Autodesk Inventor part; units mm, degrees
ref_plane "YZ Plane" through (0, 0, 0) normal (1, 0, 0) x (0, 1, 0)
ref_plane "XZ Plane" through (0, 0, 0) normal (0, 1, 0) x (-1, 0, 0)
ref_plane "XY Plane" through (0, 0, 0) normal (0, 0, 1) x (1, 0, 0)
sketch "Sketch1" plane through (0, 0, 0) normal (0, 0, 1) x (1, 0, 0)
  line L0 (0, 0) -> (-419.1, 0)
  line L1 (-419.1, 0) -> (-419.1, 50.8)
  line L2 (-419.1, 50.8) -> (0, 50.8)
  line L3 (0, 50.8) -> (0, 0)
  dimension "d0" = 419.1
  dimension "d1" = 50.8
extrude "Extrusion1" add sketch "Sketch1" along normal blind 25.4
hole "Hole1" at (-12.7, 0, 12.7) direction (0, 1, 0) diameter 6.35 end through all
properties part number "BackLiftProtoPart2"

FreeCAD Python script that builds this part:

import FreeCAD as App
import Part
import Sketcher

V = App.Vector
Q = App.Units.Quantity


def add_polygon(sketch, points):
    """Adds a closed chain of lines whose ends are joined by coincident constraints."""
    first, n = sketch.GeometryCount, len(points)
    for a, b in zip(points, points[1:] + points[:1]):
        sketch.addGeometry(Part.LineSegment(App.Vector(*a, 0), App.Vector(*b, 0)), False)
    for i in range(n):
        sketch.addConstraint(Sketcher.Constraint("Coincident", first + i, 2, first + (i + 1) % n, 1))

doc = App.newDocument("Part")
body = doc.addObject("PartDesign::Body", "Body")

# Sketch on XY plane
sketch1 = body.newObject("Sketcher::SketchObject", "Sketch")
sketch1.AttachmentSupport = (doc.getObject("XY_Plane"), [""])
sketch1.MapMode = "FlatFace"
add_polygon(sketch1, [(-419.1, 0), (0, 0), (0, 50.8), (-419.1, 50.8)])  # lines 0-3
sketch1.addConstraint(Sketcher.Constraint("Horizontal", 0))
sketch1.addConstraint(Sketcher.Constraint("Vertical", 1))
sketch1.addConstraint(Sketcher.Constraint("Horizontal", 2))
sketch1.addConstraint(Sketcher.Constraint("Vertical", 3))
sketch1.addConstraint(Sketcher.Constraint("Coincident", 0, 2, -1, 1))
sketch1.addConstraint(Sketcher.Constraint("DistanceY", 1, 1, 1, 2, Q("2 in")))
sketch1.addConstraint(Sketcher.Constraint("DistanceX", 0, 1, 0, 2, Q("16.5 in")))
pad1 = body.newObject("PartDesign::Pad", "Pad")
pad1.Profile = sketch1
pad1.Length = Q("1 in")

# Sketch on XZ plane
sketch2 = body.newObject("Sketcher::SketchObject", "Sketch001")
sketch2.AttachmentSupport = (doc.getObject("XZ_Plane"), [""])
sketch2.MapMode = "FlatFace"
sketch2.addGeometry(Part.Circle(V(-12.7, 12.7, 0), V(0, 0, 1), 3.175), False)
sketch2.addConstraint(Sketcher.Constraint("Diameter", 0, Q("0.25 in")))
sketch2.addConstraint(Sketcher.Constraint("DistanceX", 0, 3, -1, 1, Q("0.5 in")))
sketch2.addConstraint(Sketcher.Constraint("DistanceY", -1, 1, 0, 3, Q("0.5 in")))
doc.recompute()
hole = body.newObject("PartDesign::Hole", "Hole")
hole.Profile = sketch2
hole.ThreadType = "None"
hole.Diameter = Q("0.25 in")
hole.DepthType = "ThroughAll"

doc.recompute()
